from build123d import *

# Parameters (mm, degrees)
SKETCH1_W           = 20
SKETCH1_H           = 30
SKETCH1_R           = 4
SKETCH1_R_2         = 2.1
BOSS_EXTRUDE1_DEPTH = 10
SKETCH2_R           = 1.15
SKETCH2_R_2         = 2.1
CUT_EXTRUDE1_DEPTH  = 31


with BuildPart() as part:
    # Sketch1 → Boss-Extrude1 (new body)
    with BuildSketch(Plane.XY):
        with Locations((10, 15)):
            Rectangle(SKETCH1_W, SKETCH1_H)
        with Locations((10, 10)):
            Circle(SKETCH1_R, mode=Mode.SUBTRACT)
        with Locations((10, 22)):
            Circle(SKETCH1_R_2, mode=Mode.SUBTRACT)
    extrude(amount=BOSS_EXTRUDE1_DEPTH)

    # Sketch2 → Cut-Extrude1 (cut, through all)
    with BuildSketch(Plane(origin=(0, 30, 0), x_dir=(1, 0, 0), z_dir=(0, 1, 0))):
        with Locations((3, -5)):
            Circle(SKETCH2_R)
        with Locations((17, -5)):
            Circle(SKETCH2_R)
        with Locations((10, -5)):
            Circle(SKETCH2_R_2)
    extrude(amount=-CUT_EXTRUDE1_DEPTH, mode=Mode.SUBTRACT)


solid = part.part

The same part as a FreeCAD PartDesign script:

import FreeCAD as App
import Part
import Sketcher
Q = App.Units.Quantity


def add_polygon(sketch, points):
    """Adds a closed chain of lines whose ends are joined by coincident constraints."""
    first, n = sketch.GeometryCount, len(points)
    for a, b in zip(points, points[1:] + points[:1]):
        sketch.addGeometry(Part.LineSegment(App.Vector(*a, 0), App.Vector(*b, 0)), False)
    for i in range(n):
        sketch.addConstraint(Sketcher.Constraint("Coincident", first + i, 2, first + (i + 1) % n, 1))

doc = App.newDocument("Part")
body = doc.addObject("PartDesign::Body", "Body")

# Sketch on XY plane
sketch1 = body.newObject("Sketcher::SketchObject", "Sketch")
sketch1.AttachmentSupport = (doc.getObject("XY_Plane"), [""])
sketch1.MapMode = "FlatFace"
add_polygon(sketch1, [(0, 30), (0, 0), (20, 0), (20, 30)])  # lines 0-3
sketch1.addGeometry(Part.Circle(App.Vector(10, 10, 0), App.Vector(0, 0, 1), 4), False)  # 4
sketch1.addGeometry(Part.Circle(App.Vector(10, 22, 0), App.Vector(0, 0, 1), 2.1), False)  # 5
sketch1.addConstraint([
    Sketcher.Constraint("Vertical", 0),
    Sketcher.Constraint("Horizontal", 1),
    Sketcher.Constraint("Vertical", 2),
    Sketcher.Constraint("Horizontal", 3),
    Sketcher.Constraint("Coincident", 0, 2, -1, 1),
    Sketcher.Constraint("Vertical", 4, 3, 5, 3),
    Sketcher.Constraint("Diameter", 4, Q("8 mm")),
    Sketcher.Constraint("Diameter", 5, Q("4.2 mm")),
    Sketcher.Constraint("DistanceX", 1, 1, 1, 2, Q("20 mm")),
    Sketcher.Constraint("DistanceY", 0, 2, 0, 1, Q("30 mm")),
    Sketcher.Constraint("DistanceX", -1, 1, 4, 3, Q("10 mm")),
    Sketcher.Constraint("DistanceY", -1, 1, 4, 3, Q("10 mm")),
    Sketcher.Constraint("DistanceY", -1, 1, 5, 3, Q("22 mm")),
])
pad1 = body.newObject("PartDesign::Pad", "Pad")
pad1.Profile = sketch1
pad1.Length = 10

# Sketch on XZ plane
sketch2 = body.newObject("Sketcher::SketchObject", "Sketch001")
sketch2.AttachmentSupport = (doc.getObject("XZ_Plane"), [""])
sketch2.MapMode = "FlatFace"
sketch2.AttachmentOffset = App.Placement(App.Vector(0, 0, -30), App.Rotation())
sketch2.addGeometry([
    Part.Circle(App.Vector(3, 5, 0), App.Vector(0, 0, 1), 1.1),
    Part.Circle(App.Vector(17, 5, 0), App.Vector(0, 0, 1), 1.1),
    Part.Circle(App.Vector(10, 5, 0), App.Vector(0, 0, 1), 2.1),
], False)
sketch2.addConstraint([
    Sketcher.Constraint("Equal", 0, 1),
    Sketcher.Constraint("Horizontal", 0, 3, 1, 3),
    Sketcher.Constraint("Horizontal", 1, 3, 2, 3),
    Sketcher.Constraint("Diameter", 0, Q("2.3 mm")),
    Sketcher.Constraint("Diameter", 2, Q("4.2 mm")),
    Sketcher.Constraint("DistanceX", -1, 1, 0, 3, Q("3 mm")),
    Sketcher.Constraint("DistanceY", -1, 1, 0, 3, Q("5 mm")),
    Sketcher.Constraint("DistanceX", -1, 1, 1, 3, Q("17 mm")),
    Sketcher.Constraint("DistanceX", -1, 1, 2, 3, Q("10 mm")),
])
pocket1 = body.newObject("PartDesign::Pocket", "Pocket")
pocket1.Profile = sketch2
pocket1.Type = "ThroughAll"
pocket1.Reversed = True

doc.recompute()
